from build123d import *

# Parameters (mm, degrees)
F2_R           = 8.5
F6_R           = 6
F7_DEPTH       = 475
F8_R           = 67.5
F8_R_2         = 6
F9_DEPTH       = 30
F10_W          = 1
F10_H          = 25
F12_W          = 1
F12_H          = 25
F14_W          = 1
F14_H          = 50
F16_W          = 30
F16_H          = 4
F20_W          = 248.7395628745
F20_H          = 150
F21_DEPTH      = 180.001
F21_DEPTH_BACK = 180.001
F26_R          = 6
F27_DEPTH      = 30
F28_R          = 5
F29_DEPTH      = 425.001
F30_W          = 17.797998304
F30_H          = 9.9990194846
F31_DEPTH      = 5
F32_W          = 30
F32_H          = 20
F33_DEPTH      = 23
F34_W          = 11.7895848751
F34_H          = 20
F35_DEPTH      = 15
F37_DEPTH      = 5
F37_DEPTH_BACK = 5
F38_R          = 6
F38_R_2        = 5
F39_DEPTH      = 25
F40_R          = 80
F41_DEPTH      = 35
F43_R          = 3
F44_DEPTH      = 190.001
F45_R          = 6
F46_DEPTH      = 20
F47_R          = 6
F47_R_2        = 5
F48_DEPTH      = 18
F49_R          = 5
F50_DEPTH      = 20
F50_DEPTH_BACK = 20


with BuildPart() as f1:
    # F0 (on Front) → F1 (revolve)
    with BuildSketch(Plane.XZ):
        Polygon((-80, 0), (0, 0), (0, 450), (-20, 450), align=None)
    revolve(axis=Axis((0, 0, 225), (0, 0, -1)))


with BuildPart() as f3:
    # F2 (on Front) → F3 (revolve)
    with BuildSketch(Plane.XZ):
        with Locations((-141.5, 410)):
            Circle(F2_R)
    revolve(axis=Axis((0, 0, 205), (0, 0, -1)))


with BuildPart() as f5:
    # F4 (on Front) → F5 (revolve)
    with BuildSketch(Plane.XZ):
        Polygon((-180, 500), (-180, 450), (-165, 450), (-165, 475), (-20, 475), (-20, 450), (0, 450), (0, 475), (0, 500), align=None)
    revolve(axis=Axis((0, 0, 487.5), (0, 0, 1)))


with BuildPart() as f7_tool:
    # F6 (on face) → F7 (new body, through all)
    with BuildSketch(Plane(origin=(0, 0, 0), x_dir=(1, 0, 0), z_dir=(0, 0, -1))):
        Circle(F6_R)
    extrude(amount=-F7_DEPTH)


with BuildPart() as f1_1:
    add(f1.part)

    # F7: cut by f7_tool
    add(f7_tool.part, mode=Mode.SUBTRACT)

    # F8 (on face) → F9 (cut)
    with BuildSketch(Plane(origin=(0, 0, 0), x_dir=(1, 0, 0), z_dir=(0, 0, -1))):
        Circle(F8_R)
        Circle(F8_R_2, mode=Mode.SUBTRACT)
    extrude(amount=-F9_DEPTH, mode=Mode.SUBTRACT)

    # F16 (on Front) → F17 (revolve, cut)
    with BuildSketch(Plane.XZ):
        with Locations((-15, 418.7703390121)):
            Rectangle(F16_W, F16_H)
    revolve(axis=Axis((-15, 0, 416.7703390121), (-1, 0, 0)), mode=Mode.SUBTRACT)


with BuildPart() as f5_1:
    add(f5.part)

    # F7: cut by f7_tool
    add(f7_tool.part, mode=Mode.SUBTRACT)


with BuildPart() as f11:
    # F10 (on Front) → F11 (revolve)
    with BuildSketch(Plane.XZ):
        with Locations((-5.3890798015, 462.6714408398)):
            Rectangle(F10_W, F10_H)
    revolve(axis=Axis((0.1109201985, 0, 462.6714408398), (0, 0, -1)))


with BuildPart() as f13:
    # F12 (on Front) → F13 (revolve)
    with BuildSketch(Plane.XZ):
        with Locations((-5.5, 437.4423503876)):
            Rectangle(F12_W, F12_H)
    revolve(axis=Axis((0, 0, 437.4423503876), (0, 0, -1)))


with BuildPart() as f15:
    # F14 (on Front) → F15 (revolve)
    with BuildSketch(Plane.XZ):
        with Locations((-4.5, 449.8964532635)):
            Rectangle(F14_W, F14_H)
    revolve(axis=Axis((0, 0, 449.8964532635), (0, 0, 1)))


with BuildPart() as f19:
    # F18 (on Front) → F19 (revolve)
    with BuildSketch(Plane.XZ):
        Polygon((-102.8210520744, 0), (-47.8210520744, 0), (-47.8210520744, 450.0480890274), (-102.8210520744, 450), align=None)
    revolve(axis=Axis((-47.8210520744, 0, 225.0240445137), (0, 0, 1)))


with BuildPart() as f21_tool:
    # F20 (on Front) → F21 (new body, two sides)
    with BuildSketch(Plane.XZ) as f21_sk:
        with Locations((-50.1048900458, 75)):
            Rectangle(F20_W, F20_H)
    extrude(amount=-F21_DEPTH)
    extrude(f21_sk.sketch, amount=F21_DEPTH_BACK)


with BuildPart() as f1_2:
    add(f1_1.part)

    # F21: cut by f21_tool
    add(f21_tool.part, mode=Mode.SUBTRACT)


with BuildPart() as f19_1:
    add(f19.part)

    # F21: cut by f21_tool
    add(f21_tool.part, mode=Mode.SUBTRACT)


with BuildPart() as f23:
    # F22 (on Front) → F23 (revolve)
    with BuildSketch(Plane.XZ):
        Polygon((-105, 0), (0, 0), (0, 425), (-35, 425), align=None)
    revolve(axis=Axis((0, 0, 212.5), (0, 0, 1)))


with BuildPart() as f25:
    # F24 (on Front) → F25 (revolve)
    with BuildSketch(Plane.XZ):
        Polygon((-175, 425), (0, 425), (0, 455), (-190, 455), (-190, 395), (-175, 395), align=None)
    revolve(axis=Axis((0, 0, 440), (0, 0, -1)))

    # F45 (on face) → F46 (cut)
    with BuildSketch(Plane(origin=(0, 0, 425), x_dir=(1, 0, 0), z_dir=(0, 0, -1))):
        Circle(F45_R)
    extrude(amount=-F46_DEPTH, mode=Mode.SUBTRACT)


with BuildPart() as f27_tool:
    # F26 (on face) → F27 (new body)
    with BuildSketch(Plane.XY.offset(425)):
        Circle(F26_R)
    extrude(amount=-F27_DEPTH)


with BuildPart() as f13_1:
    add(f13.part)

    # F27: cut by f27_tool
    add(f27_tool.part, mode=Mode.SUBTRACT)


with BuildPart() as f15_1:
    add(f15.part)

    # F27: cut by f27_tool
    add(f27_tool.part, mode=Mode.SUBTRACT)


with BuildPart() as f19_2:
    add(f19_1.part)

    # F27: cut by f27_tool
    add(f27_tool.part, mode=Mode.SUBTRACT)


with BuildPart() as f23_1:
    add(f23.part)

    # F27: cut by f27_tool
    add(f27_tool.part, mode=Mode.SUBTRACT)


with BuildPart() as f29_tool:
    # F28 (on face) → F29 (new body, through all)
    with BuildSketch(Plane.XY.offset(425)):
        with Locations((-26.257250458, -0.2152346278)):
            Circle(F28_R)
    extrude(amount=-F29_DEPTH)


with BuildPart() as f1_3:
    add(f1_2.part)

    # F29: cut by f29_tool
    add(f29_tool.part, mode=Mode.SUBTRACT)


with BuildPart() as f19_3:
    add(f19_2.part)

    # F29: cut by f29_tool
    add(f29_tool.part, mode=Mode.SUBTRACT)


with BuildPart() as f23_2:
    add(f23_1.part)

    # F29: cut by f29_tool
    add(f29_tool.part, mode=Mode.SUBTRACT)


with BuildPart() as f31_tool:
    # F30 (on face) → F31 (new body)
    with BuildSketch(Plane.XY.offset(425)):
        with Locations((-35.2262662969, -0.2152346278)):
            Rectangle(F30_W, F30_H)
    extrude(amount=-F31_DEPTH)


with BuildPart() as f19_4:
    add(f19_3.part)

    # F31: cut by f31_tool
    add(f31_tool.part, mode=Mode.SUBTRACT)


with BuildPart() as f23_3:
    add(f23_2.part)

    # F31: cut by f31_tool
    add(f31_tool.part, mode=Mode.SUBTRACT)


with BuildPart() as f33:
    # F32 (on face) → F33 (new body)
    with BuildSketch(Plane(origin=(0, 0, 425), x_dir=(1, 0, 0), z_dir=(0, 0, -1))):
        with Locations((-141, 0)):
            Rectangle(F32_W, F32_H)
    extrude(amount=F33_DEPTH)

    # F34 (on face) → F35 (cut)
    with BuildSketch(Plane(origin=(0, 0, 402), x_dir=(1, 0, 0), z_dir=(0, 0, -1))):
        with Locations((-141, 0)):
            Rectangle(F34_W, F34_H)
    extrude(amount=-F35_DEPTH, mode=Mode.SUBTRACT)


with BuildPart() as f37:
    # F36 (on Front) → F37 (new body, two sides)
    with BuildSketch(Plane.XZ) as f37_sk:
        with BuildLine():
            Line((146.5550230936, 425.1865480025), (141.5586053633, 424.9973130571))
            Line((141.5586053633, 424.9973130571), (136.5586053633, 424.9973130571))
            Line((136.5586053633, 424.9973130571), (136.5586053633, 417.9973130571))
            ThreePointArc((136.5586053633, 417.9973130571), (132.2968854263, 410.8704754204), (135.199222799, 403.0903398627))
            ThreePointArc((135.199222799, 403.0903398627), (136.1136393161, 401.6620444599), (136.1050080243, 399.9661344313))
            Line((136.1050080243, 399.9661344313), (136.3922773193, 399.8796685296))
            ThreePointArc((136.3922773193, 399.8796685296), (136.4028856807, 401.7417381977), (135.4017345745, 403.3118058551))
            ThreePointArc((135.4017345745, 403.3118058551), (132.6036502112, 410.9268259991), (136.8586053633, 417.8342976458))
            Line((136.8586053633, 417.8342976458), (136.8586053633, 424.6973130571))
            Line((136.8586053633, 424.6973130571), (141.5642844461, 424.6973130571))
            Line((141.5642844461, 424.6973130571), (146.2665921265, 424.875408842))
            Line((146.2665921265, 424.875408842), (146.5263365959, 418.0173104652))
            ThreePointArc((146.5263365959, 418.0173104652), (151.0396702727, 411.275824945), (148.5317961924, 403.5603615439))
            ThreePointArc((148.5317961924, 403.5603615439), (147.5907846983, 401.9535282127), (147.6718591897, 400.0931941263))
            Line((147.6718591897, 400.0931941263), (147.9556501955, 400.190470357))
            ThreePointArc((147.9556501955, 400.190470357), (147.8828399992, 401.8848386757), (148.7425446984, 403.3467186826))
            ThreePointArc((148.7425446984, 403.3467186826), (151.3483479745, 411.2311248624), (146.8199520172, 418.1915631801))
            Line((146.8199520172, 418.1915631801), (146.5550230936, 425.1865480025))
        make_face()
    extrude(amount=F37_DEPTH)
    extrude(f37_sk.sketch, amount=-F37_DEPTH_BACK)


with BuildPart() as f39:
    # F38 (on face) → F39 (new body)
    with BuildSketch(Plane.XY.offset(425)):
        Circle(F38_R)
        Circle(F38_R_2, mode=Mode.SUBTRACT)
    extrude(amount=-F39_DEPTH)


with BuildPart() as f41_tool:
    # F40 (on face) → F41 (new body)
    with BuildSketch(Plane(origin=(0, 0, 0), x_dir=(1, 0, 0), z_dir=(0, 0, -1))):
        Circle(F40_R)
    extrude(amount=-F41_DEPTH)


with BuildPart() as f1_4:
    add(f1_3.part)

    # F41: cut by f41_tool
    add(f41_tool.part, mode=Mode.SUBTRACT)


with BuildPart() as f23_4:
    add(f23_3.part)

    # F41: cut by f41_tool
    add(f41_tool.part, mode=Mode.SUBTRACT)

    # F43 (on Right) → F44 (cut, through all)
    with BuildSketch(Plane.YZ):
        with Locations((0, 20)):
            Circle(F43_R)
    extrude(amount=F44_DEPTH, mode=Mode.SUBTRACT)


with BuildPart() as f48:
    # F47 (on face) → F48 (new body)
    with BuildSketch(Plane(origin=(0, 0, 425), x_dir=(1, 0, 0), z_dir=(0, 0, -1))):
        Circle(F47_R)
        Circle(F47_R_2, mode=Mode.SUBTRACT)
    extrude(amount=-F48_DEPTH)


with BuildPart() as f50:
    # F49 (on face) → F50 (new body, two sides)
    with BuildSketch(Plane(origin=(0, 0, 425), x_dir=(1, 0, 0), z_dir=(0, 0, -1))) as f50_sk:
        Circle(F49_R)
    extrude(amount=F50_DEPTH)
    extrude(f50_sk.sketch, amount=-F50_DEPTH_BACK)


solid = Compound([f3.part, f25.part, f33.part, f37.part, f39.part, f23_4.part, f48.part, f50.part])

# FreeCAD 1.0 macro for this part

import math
import FreeCAD as App
import Part
import Sketcher

doc = App.newDocument("Part")
params = doc.addObject("Spreadsheet::Sheet", "Params")
for row, (alias, value) in enumerate([
    ("sketch1_width", "80 mm"),
    ("sketch1_width2", "20 mm"),
    ("sketch1_height", "450 mm"),
    ("revolution_angle", "360 deg"),
    ("sketch2_diameter", "17 mm"),
    ("revolution2_angle", "360 deg"),
    ("sketch3_width", "15 mm"),
    ("sketch3_width2", "145 mm"),
    ("sketch3_width3", "20 mm"),
    ("sketch3_height", "50 mm"),
    ("sketch3_height2", "25 mm"),
    ("revolution3_angle", "360 deg"),
    ("sketch4_diameter", "12 mm"),
    ("pad1_length", "475 mm"),
    ("sketch5_diameter", "135 mm"),
    ("sketch5_diameter2", "12 mm"),
    ("pocket1_length", "30 mm"),
    ("sketch6_width", "30 mm"),
    ("sketch6_height", "4 mm"),
    ("groove_angle", "360 deg"),
    ("sketch7_width", "1 mm"),
    ("sketch7_height", "25 mm"),
    ("revolution4_angle", "360 deg"),
    ("sketch8_width", "1 mm"),
    ("sketch8_height", "25 mm"),
    ("revolution5_angle", "360 deg"),
    ("sketch9_width", "1 mm"),
    ("sketch9_height", "50 mm"),
    ("revolution6_angle", "360 deg"),
    ("sketch10_width", "55 mm"),
    ("sketch10_height", "450 mm"),
    ("revolution7_angle", "360 deg"),
    ("sketch11_height", "150 mm"),
    ("pad2_length", "180.001 mm"),
    ("pad2_length2", "180.001 mm"),
    ("sketch12_width", "105 mm"),
    ("sketch12_width2", "35 mm"),
    ("sketch12_height", "425 mm"),
    ("revolution8_angle", "360 deg"),
    ("sketch13_width", "175 mm"),
    ("sketch13_width2", "190 mm"),
    ("sketch13_height", "30 mm"),
    ("revolution9_angle", "360 deg"),
    ("sketch14_diameter", "12 mm"),
    ("pocket2_length", "20 mm"),
    ("sketch15_diameter", "12 mm"),
    ("pad3_length", "30 mm"),
    ("sketch16_diameter", "10 mm"),
    ("pad4_length", "425.001 mm"),
    ("pad5_length", "5 mm"),
    ("sketch18_width", "30 mm"),
    ("sketch18_height", "20 mm"),
    ("pad6_length", "23 mm"),
    ("sketch19_height", "20 mm"),
    ("pocket3_length", "15 mm"),
    ("sketch20_width", "5 mm"),
    ("sketch20_height", "7 mm"),
    ("sketch20_length", "5 mm"),
    ("sketch20_length2", "7 mm"),
    ("sketch20_length3", "0.3 mm"),
    ("pad7_length", "5 mm"),
    ("pad7_length2", "5 mm"),
    ("sketch21_diameter", "12 mm"),
    ("sketch21_diameter2", "10 mm"),
    ("pad8_length", "25 mm"),
    ("sketch22_diameter", "160 mm"),
    ("pad9_length", "35 mm"),
    ("sketch23_diameter", "6 mm"),
    ("sketch24_diameter", "12 mm"),
    ("sketch24_diameter2", "10 mm"),
    ("pad10_length", "18 mm"),
    ("sketch25_diameter", "10 mm"),
    ("pad11_length", "20 mm"),
    ("pad11_length2", "20 mm"),
], start=1):
    params.set(f"A{row}", alias)
    params.set(f"B{row}", "=" + value)
    params.setAlias(f"B{row}", alias)

body = doc.addObject("PartDesign::Body", "Body")

sketch1 = body.newObject("Sketcher::SketchObject", "Sketch")
sketch1.AttachmentSupport = (doc.getObject("XZ_Plane"), [""])
sketch1.MapMode = "FlatFace"
sketch1.addGeometry([
    Part.LineSegment(App.Vector(-80, 0, 0), App.Vector(0, 0, 0)),
    Part.LineSegment(App.Vector(0, 0, 0), App.Vector(0, 450, 0)),
    Part.LineSegment(App.Vector(0, 450, 0), App.Vector(-20, 450, 0)),
    Part.LineSegment(App.Vector(-20, 450, 0), App.Vector(-80, 0, 0)),
], False)
sketch1.addConstraint([
    Sketcher.Constraint("Coincident", 0, 2, 1, 1),
    Sketcher.Constraint("Coincident", 1, 2, 2, 1),
    Sketcher.Constraint("Coincident", 2, 2, 3, 1),
    Sketcher.Constraint("Coincident", 3, 2, 0, 1),
    Sketcher.Constraint("Horizontal", 0),
    Sketcher.Constraint("Vertical", 1),
    Sketcher.Constraint("Horizontal", 2),
    Sketcher.Constraint("Coincident", 0, 2, -1, 1),
    Sketcher.Constraint("DistanceX", 0, 1, 0, 2, 80.0),
    Sketcher.Constraint("DistanceX", 2, 2, 2, 1, 20.0),
    Sketcher.Constraint("DistanceY", 1, 1, 1, 2, 450.0),
])
sketch1.setExpression("Constraints[8]", "Params.sketch1_width")
sketch1.setExpression("Constraints[9]", "Params.sketch1_width2")
sketch1.setExpression("Constraints[10]", "Params.sketch1_height")
revolution = body.newObject("PartDesign::Revolution", "Revolution")
revolution.Profile = sketch1
revolution.ReferenceAxis = (sketch1, ["V_Axis"])
revolution.setExpression("Angle", "Params.revolution_angle")
body2 = doc.addObject("PartDesign::Body", "Body001")

sketch2 = body2.newObject("Sketcher::SketchObject", "Sketch001")
sketch2.AttachmentSupport = (doc.getObject("XZ_Plane001"), [""])
sketch2.MapMode = "FlatFace"
sketch2.addGeometry(Part.Circle(App.Vector(-142, 410, 0), App.Vector(0, 0, 1), 8), False)
sketch2.addConstraint([
    Sketcher.Constraint("Diameter", 0, 17.0),
    Sketcher.Constraint("DistanceY", -1, 1, 0, 3, 410.0),
    Sketcher.Constraint("DistanceX", 0, 3, -1, 1, 141.5),
])
sketch2.setExpression("Constraints[0]", "Params.sketch2_diameter")
revolution2 = body2.newObject("PartDesign::Revolution", "Revolution001")
revolution2.Profile = sketch2
revolution2.ReferenceAxis = (sketch2, ["V_Axis"])
revolution2.setExpression("Angle", "Params.revolution2_angle")
body3 = doc.addObject("PartDesign::Body", "Body002")

sketch3 = body3.newObject("Sketcher::SketchObject", "Sketch002")
sketch3.AttachmentSupport = (doc.getObject("XZ_Plane002"), [""])
sketch3.MapMode = "FlatFace"
sketch3.addGeometry([
    Part.LineSegment(App.Vector(-180, 500, 0), App.Vector(-180, 450, 0)),
    Part.LineSegment(App.Vector(-180, 450, 0), App.Vector(-165, 450, 0)),
    Part.LineSegment(App.Vector(-165, 450, 0), App.Vector(-165, 475, 0)),
    Part.LineSegment(App.Vector(-165, 475, 0), App.Vector(-20, 475, 0)),
    Part.LineSegment(App.Vector(-20, 475, 0), App.Vector(-20, 450, 0)),
    Part.LineSegment(App.Vector(-20, 450, 0), App.Vector(0, 450, 0)),
    Part.LineSegment(App.Vector(0, 450, 0), App.Vector(0, 500, 0)),
    Part.LineSegment(App.Vector(0, 500, 0), App.Vector(-180, 500, 0)),
], False)
sketch3.addConstraint([
    Sketcher.Constraint("Coincident", 0, 2, 1, 1),
    Sketcher.Constraint("Coincident", 1, 2, 2, 1),
    Sketcher.Constraint("Coincident", 2, 2, 3, 1),
    Sketcher.Constraint("Coincident", 3, 2, 4, 1),
    Sketcher.Constraint("Coincident", 4, 2, 5, 1),
    Sketcher.Constraint("Coincident", 5, 2, 6, 1),
    Sketcher.Constraint("Coincident", 6, 2, 7, 1),
    Sketcher.Constraint("Coincident", 7, 2, 0, 1),
    Sketcher.Constraint("Vertical", 0),
    Sketcher.Constraint("Horizontal", 1),
    Sketcher.Constraint("Vertical", 2),
    Sketcher.Constraint("Horizontal", 3),
    Sketcher.Constraint("Vertical", 4),
    Sketcher.Constraint("Horizontal", 5),
    Sketcher.Constraint("Vertical", 6),
    Sketcher.Constraint("Horizontal", 7),
    Sketcher.Constraint("PointOnObject", 5, 2, -2),
    Sketcher.Constraint("Horizontal", 1, 2, 4, 2),
    Sketcher.Constraint("DistanceX", 1, 1, 1, 2, 15.0),
    Sketcher.Constraint("DistanceX", 3, 1, 3, 2, 145.0),
    Sketcher.Constraint("DistanceX", 5, 1, 5, 2, 20.0),
    Sketcher.Constraint("DistanceY", 0, 2, 0, 1, 50.0),
    Sketcher.Constraint("DistanceY", 2, 1, 2, 2, 25.0),
    Sketcher.Constraint("DistanceY", -1, 1, 0, 2, 450.0),
])
sketch3.setExpression("Constraints[18]", "Params.sketch3_width")
sketch3.setExpression("Constraints[19]", "Params.sketch3_width2")
sketch3.setExpression("Constraints[20]", "Params.sketch3_width3")
sketch3.setExpression("Constraints[21]", "Params.sketch3_height")
sketch3.setExpression("Constraints[22]", "Params.sketch3_height2")
revolution3 = body3.newObject("PartDesign::Revolution", "Revolution002")
revolution3.Profile = sketch3
revolution3.ReferenceAxis = (sketch3, ["V_Axis"])
revolution3.setExpression("Angle", "Params.revolution3_angle")
body4 = doc.addObject("PartDesign::Body", "Body003")

sketch4 = body4.newObject("Sketcher::SketchObject", "Sketch003")
sketch4.AttachmentSupport = (doc.getObject("XY_Plane003"), [""])
sketch4.MapMode = "FlatFace"
sketch4.addGeometry(Part.Circle(App.Vector(0, 0, 0), App.Vector(0, 0, 1), 6), False)
sketch4.addConstraint([
    Sketcher.Constraint("Coincident", 0, 3, -1, 1),
    Sketcher.Constraint("Diameter", 0, 12.0),
])
sketch4.setExpression("Constraints[1]", "Params.sketch4_diameter")
pad1 = body4.newObject("PartDesign::Pad", "Pad")
pad1.Profile = sketch4
pad1.setExpression("Length", "Params.pad1_length")
doc.recompute()

body5 = doc.addObject("PartDesign::Body", "Body004")
body5.BaseFeature = body4
boolean = body.newObject("PartDesign::Boolean", "Boolean")
boolean.Type = "Cut"
boolean.addObjects([body5])
doc.recompute()

sketch5 = body.newObject("Sketcher::SketchObject", "Sketch004")
sketch5.AttachmentSupport = (doc.getObject("XY_Plane"), [""])
sketch5.MapMode = "FlatFace"
sketch5.addGeometry([
    Part.Circle(App.Vector(0, 0, 0), App.Vector(0, 0, 1), 68),
    Part.Circle(App.Vector(0, 0, 0), App.Vector(0, 0, 1), 6),
], False)
sketch5.addConstraint([
    Sketcher.Constraint("Coincident", 0, 3, -1, 1),
    Sketcher.Constraint("Coincident", 1, 3, -1, 1),
    Sketcher.Constraint("Diameter", 0, 135.0),
    Sketcher.Constraint("Diameter", 1, 12.0),
])
sketch5.setExpression("Constraints[2]", "Params.sketch5_diameter")
sketch5.setExpression("Constraints[3]", "Params.sketch5_diameter2")
pocket1 = body.newObject("PartDesign::Pocket", "Pocket")
pocket1.Profile = sketch5
pocket1.setExpression("Length", "Params.pocket1_length")
pocket1.Reversed = True

sketch6 = body.newObject("Sketcher::SketchObject", "Sketch005")
sketch6.AttachmentSupport = (doc.getObject("XZ_Plane"), [""])
sketch6.MapMode = "FlatFace"
sketch6.addGeometry([
    Part.LineSegment(App.Vector(-30, 420.8, 0), App.Vector(-30, 416.8, 0)),
    Part.LineSegment(App.Vector(-30, 416.8, 0), App.Vector(0, 416.8, 0)),
    Part.LineSegment(App.Vector(0, 416.8, 0), App.Vector(0, 420.8, 0)),
    Part.LineSegment(App.Vector(0, 420.8, 0), App.Vector(-30, 420.8, 0)),
], False)
sketch6.addGeometry(Part.LineSegment(App.Vector(0, 416.8, 0), App.Vector(-30, 416.8, 0)), True)
sketch6.addConstraint([
    Sketcher.Constraint("Coincident", 0, 2, 1, 1),
    Sketcher.Constraint("Coincident", 1, 2, 2, 1),
    Sketcher.Constraint("Coincident", 2, 2, 3, 1),
    Sketcher.Constraint("Coincident", 3, 2, 0, 1),
    Sketcher.Constraint("Vertical", 0),
    Sketcher.Constraint("Horizontal", 1),
    Sketcher.Constraint("Vertical", 2),
    Sketcher.Constraint("Horizontal", 3),
    Sketcher.Constraint("Horizontal", 4),
    Sketcher.Constraint("Coincident", 4, 1, 1, 2),
    Sketcher.Constraint("PointOnObject", 1, 2, -2),
    Sketcher.Constraint("Vertical", 3, 2, 4, 2),
    Sketcher.Constraint("DistanceX", 1, 1, 1, 2, 30.0),
    Sketcher.Constraint("DistanceY", 0, 2, 0, 1, 4.0),
    Sketcher.Constraint("DistanceY", -1, 1, 0, 2, 416.770339),
])
sketch6.setExpression("Constraints[12]", "Params.sketch6_width")
sketch6.setExpression("Constraints[13]", "Params.sketch6_height")
groove = body.newObject("PartDesign::Groove", "Groove")
groove.Profile = sketch6
groove.ReferenceAxis = (sketch6, ["Axis0"])
groove.setExpression("Angle", "Params.groove_angle")
doc.recompute()

boolean2 = body3.newObject("PartDesign::Boolean", "Boolean001")
boolean2.Type = "Cut"
boolean2.addObjects([body4])
body6 = doc.addObject("PartDesign::Body", "Body005")

sketch7 = body6.newObject("Sketcher::SketchObject", "Sketch006")
sketch7.AttachmentSupport = (doc.getObject("XZ_Plane005"), [""])
sketch7.MapMode = "FlatFace"
sketch7.addGeometry([
    Part.LineSegment(App.Vector(-5.9, 475.2, 0), App.Vector(-5.9, 450.2, 0)),
    Part.LineSegment(App.Vector(-5.9, 450.2, 0), App.Vector(-4.9, 450.2, 0)),
    Part.LineSegment(App.Vector(-4.9, 450.2, 0), App.Vector(-4.9, 475.2, 0)),
    Part.LineSegment(App.Vector(-4.9, 475.2, 0), App.Vector(-5.9, 475.2, 0)),
], False)
sketch7.addGeometry(Part.LineSegment(App.Vector(0.1, 475.2, 0), App.Vector(0.1, 450.2, 0)), True)
sketch7.addConstraint([
    Sketcher.Constraint("Coincident", 0, 2, 1, 1),
    Sketcher.Constraint("Coincident", 1, 2, 2, 1),
    Sketcher.Constraint("Coincident", 2, 2, 3, 1),
    Sketcher.Constraint("Coincident", 3, 2, 0, 1),
    Sketcher.Constraint("Vertical", 0),
    Sketcher.Constraint("Horizontal", 1),
    Sketcher.Constraint("Vertical", 2),
    Sketcher.Constraint("Horizontal", 3),
    Sketcher.Constraint("Vertical", 4),
    Sketcher.Constraint("Horizontal", 3, 2, 4, 1),
    Sketcher.Constraint("Horizontal", 1, 2, 4, 2),
    Sketcher.Constraint("DistanceX", 1, 1, 1, 2, 1.0),
    Sketcher.Constraint("DistanceY", 0, 2, 0, 1, 25.0),
    Sketcher.Constraint("DistanceX", 2, 2, 4, 1, 5.0),
    Sketcher.Constraint("DistanceX", 0, 2, -1, 1, 5.88908),
    Sketcher.Constraint("DistanceY", -1, 1, 0, 2, 450.171441),
])
sketch7.setExpression("Constraints[11]", "Params.sketch7_width")
sketch7.setExpression("Constraints[12]", "Params.sketch7_height")
revolution4 = body6.newObject("PartDesign::Revolution", "Revolution003")
revolution4.Profile = sketch7
revolution4.ReferenceAxis = (sketch7, ["Axis0"])
revolution4.setExpression("Angle", "Params.revolution4_angle")
body7 = doc.addObject("PartDesign::Body", "Body006")

sketch8 = body7.newObject("Sketcher::SketchObject", "Sketch007")
sketch8.AttachmentSupport = (doc.getObject("XZ_Plane006"), [""])
sketch8.MapMode = "FlatFace"
sketch8.addGeometry([
    Part.LineSegment(App.Vector(-6, 449.9, 0), App.Vector(-6, 424.9, 0)),
    Part.LineSegment(App.Vector(-6, 424.9, 0), App.Vector(-5, 424.9, 0)),
    Part.LineSegment(App.Vector(-5, 424.9, 0), App.Vector(-5, 449.9, 0)),
    Part.LineSegment(App.Vector(-5, 449.9, 0), App.Vector(-6, 449.9, 0)),
], False)
sketch8.addConstraint([
    Sketcher.Constraint("Coincident", 0, 2, 1, 1),
    Sketcher.Constraint("Coincident", 1, 2, 2, 1),
    Sketcher.Constraint("Coincident", 2, 2, 3, 1),
    Sketcher.Constraint("Coincident", 3, 2, 0, 1),
    Sketcher.Constraint("Vertical", 0),
    Sketcher.Constraint("Horizontal", 1),
    Sketcher.Constraint("Vertical", 2),
    Sketcher.Constraint("Horizontal", 3),
    Sketcher.Constraint("DistanceX", 1, 1, 1, 2, 1.0),
    Sketcher.Constraint("DistanceY", 0, 2, 0, 1, 25.0),
    Sketcher.Constraint("DistanceX", 0, 2, -1, 1, 6.0),
    Sketcher.Constraint("DistanceY", -1, 1, 0, 2, 424.94235),
])
sketch8.setExpression("Constraints[8]", "Params.sketch8_width")
sketch8.setExpression("Constraints[9]", "Params.sketch8_height")
revolution5 = body7.newObject("PartDesign::Revolution", "Revolution004")
revolution5.Profile = sketch8
revolution5.ReferenceAxis = (sketch8, ["V_Axis"])
revolution5.setExpression("Angle", "Params.revolution5_angle")
body8 = doc.addObject("PartDesign::Body", "Body007")

sketch9 = body8.newObject("Sketcher::SketchObject", "Sketch008")
sketch9.AttachmentSupport = (doc.getObject("XZ_Plane007"), [""])
sketch9.MapMode = "FlatFace"
sketch9.addGeometry([
    Part.LineSegment(App.Vector(-5, 474.9, 0), App.Vector(-5, 424.9, 0)),
    Part.LineSegment(App.Vector(-5, 424.9, 0), App.Vector(-4, 424.9, 0)),
    Part.LineSegment(App.Vector(-4, 424.9, 0), App.Vector(-4, 474.9, 0)),
    Part.LineSegment(App.Vector(-4, 474.9, 0), App.Vector(-5, 474.9, 0)),
], False)
sketch9.addConstraint([
    Sketcher.Constraint("Coincident", 0, 2, 1, 1),
    Sketcher.Constraint("Coincident", 1, 2, 2, 1),
    Sketcher.Constraint("Coincident", 2, 2, 3, 1),
    Sketcher.Constraint("Coincident", 3, 2, 0, 1),
    Sketcher.Constraint("Vertical", 0),
    Sketcher.Constraint("Horizontal", 1),
    Sketcher.Constraint("Vertical", 2),
    Sketcher.Constraint("Horizontal", 3),
    Sketcher.Constraint("DistanceX", 1, 1, 1, 2, 1.0),
    Sketcher.Constraint("DistanceY", 0, 2, 0, 1, 50.0),
    Sketcher.Constraint("DistanceX", 0, 2, -1, 1, 5.0),
    Sketcher.Constraint("DistanceY", -1, 1, 0, 2, 424.896453),
])
sketch9.setExpression("Constraints[8]", "Params.sketch9_width")
sketch9.setExpression("Constraints[9]", "Params.sketch9_height")
revolution6 = body8.newObject("PartDesign::Revolution", "Revolution005")
revolution6.Profile = sketch9
revolution6.ReferenceAxis = (sketch9, ["V_Axis"])
revolution6.setExpression("Angle", "Params.revolution6_angle")
body9 = doc.addObject("PartDesign::Body", "Body008")

sketch10 = body9.newObject("Sketcher::SketchObject", "Sketch009")
sketch10.AttachmentSupport = (doc.getObject("XZ_Plane008"), [""])
sketch10.MapMode = "FlatFace"
sketch10.addGeometry([
    Part.LineSegment(App.Vector(-103, 0, 0), App.Vector(-48, 0, 0)),
    Part.LineSegment(App.Vector(-48, 0, 0), App.Vector(-48, 450, 0)),
    Part.LineSegment(App.Vector(-48, 450, 0), App.Vector(-103, 450, 0)),
    Part.LineSegment(App.Vector(-103, 450, 0), App.Vector(-103, 0, 0)),
], False)
sketch10.addGeometry(Part.LineSegment(App.Vector(-48, 0, 0), App.Vector(-48, 450, 0)), True)
sketch10.addConstraint([
    Sketcher.Constraint("Coincident", 0, 2, 1, 1),
    Sketcher.Constraint("Coincident", 1, 2, 2, 1),
    Sketcher.Constraint("Coincident", 2, 2, 3, 1),
    Sketcher.Constraint("Coincident", 3, 2, 0, 1),
    Sketcher.Constraint("Horizontal", 0),
    Sketcher.Constraint("Vertical", 1),
    Sketcher.Constraint("Vertical", 3),
    Sketcher.Constraint("Vertical", 4),
    Sketcher.Constraint("Coincident", 4, 1, 0, 2),
    Sketcher.Constraint("PointOnObject", 0, 2, -1),
    Sketcher.Constraint("Equal", 1, 4),
    Sketcher.Constraint("DistanceX", 0, 1, 0, 2, 55.0),
    Sketcher.Constraint("DistanceY", 3, 2, 3, 1, 450.0),
    Sketcher.Constraint("DistanceY", 1, 1, 1, 2, 450.048089),
    Sketcher.Constraint("DistanceX", 0, 2, -1, 1, 47.821052),
])
sketch10.setExpression("Constraints[11]", "Params.sketch10_width")
sketch10.setExpression("Constraints[12]", "Params.sketch10_height")
revolution7 = body9.newObject("PartDesign::Revolution", "Revolution006")
revolution7.Profile = sketch10
revolution7.ReferenceAxis = (sketch10, ["Axis0"])
revolution7.setExpression("Angle", "Params.revolution7_angle")
body10 = doc.addObject("PartDesign::Body", "Body009")

sketch11 = body10.newObject("Sketcher::SketchObject", "Sketch010")
sketch11.AttachmentSupport = (doc.getObject("XZ_Plane009"), [""])
sketch11.MapMode = "FlatFace"
sketch11.addGeometry([
    Part.LineSegment(App.Vector(-174, 150, 0), App.Vector(-174, 0, 0)),
    Part.LineSegment(App.Vector(-174, 0, 0), App.Vector(74, 0, 0)),
    Part.LineSegment(App.Vector(74, 0, 0), App.Vector(74, 150, 0)),
    Part.LineSegment(App.Vector(74, 150, 0), App.Vector(-174, 150, 0)),
], False)
sketch11.addConstraint([
    Sketcher.Constraint("Coincident", 0, 2, 1, 1),
    Sketcher.Constraint("Coincident", 1, 2, 2, 1),
    Sketcher.Constraint("Coincident", 2, 2, 3, 1),
    Sketcher.Constraint("Coincident", 3, 2, 0, 1),
    Sketcher.Constraint("Vertical", 0),
    Sketcher.Constraint("Horizontal", 1),
    Sketcher.Constraint("Vertical", 2),
    Sketcher.Constraint("Horizontal", 3),
    Sketcher.Constraint("PointOnObject", 0, 2, -1),
    Sketcher.Constraint("DistanceY", 0, 2, 0, 1, 150.0),
    Sketcher.Constraint("DistanceX", 1, 1, 1, 2, 248.739563),
    Sketcher.Constraint("DistanceX", 0, 2, -1, 1, 174.474671),
])
sketch11.setExpression("Constraints[9]", "Params.sketch11_height")
pad2 = body10.newObject("PartDesign::Pad", "Pad001")
pad2.Profile = sketch11
pad2.Type = "TwoLengths"
pad2.setExpression("Length", "Params.pad2_length")
pad2.setExpression("Length2", "Params.pad2_length2")
pad2.Reversed = True
body.AllowCompound = True
doc.recompute()

body11 = doc.addObject("PartDesign::Body", "Body010")
body11.BaseFeature = body10
boolean3 = body.newObject("PartDesign::Boolean", "Boolean002")
boolean3.Type = "Cut"
boolean3.addObjects([body11])
doc.recompute()

boolean4 = body9.newObject("PartDesign::Boolean", "Boolean003")
boolean4.Type = "Cut"
boolean4.addObjects([body10])
body12 = doc.addObject("PartDesign::Body", "Body011")

sketch12 = body12.newObject("Sketcher::SketchObject", "Sketch011")
sketch12.AttachmentSupport = (doc.getObject("XZ_Plane011"), [""])
sketch12.MapMode = "FlatFace"
sketch12.addGeometry([
    Part.LineSegment(App.Vector(-105, 0, 0), App.Vector(0, 0, 0)),
    Part.LineSegment(App.Vector(0, 0, 0), App.Vector(0, 425, 0)),
    Part.LineSegment(App.Vector(0, 425, 0), App.Vector(-35, 425, 0)),
    Part.LineSegment(App.Vector(-35, 425, 0), App.Vector(-105, 0, 0)),
], False)
sketch12.addConstraint([
    Sketcher.Constraint("Coincident", 0, 2, 1, 1),
    Sketcher.Constraint("Coincident", 1, 2, 2, 1),
    Sketcher.Constraint("Coincident", 2, 2, 3, 1),
    Sketcher.Constraint("Coincident", 3, 2, 0, 1),
    Sketcher.Constraint("Horizontal", 0),
    Sketcher.Constraint("Vertical", 1),
    Sketcher.Constraint("Horizontal", 2),
    Sketcher.Constraint("Coincident", 0, 2, -1, 1),
    Sketcher.Constraint("DistanceX", 0, 1, 0, 2, 105.0),
    Sketcher.Constraint("DistanceX", 2, 2, 2, 1, 35.0),
    Sketcher.Constraint("DistanceY", 1, 1, 1, 2, 425.0),
])
sketch12.setExpression("Constraints[8]", "Params.sketch12_width")
sketch12.setExpression("Constraints[9]", "Params.sketch12_width2")
sketch12.setExpression("Constraints[10]", "Params.sketch12_height")
revolution8 = body12.newObject("PartDesign::Revolution", "Revolution007")
revolution8.Profile = sketch12
revolution8.ReferenceAxis = (sketch12, ["V_Axis"])
revolution8.setExpression("Angle", "Params.revolution8_angle")
body13 = doc.addObject("PartDesign::Body", "Body012")

sketch13 = body13.newObject("Sketcher::SketchObject", "Sketch012")
sketch13.AttachmentSupport = (doc.getObject("XZ_Plane012"), [""])
sketch13.MapMode = "FlatFace"
sketch13.addGeometry([
    Part.LineSegment(App.Vector(-175, 425, 0), App.Vector(0, 425, 0)),
    Part.LineSegment(App.Vector(0, 425, 0), App.Vector(0, 455, 0)),
    Part.LineSegment(App.Vector(0, 455, 0), App.Vector(-190, 455, 0)),
    Part.LineSegment(App.Vector(-190, 455, 0), App.Vector(-190, 395, 0)),
    Part.LineSegment(App.Vector(-190, 395, 0), App.Vector(-175, 395, 0)),
    Part.LineSegment(App.Vector(-175, 395, 0), App.Vector(-175, 425, 0)),
], False)
sketch13.addConstraint([
    Sketcher.Constraint("Coincident", 0, 2, 1, 1),
    Sketcher.Constraint("Coincident", 1, 2, 2, 1),
    Sketcher.Constraint("Coincident", 2, 2, 3, 1),
    Sketcher.Constraint("Coincident", 3, 2, 4, 1),
    Sketcher.Constraint("Coincident", 4, 2, 5, 1),
    Sketcher.Constraint("Coincident", 5, 2, 0, 1),
    Sketcher.Constraint("Horizontal", 0),
    Sketcher.Constraint("Vertical", 1),
    Sketcher.Constraint("Horizontal", 2),
    Sketcher.Constraint("Vertical", 3),
    Sketcher.Constraint("Horizontal", 4),
    Sketcher.Constraint("Vertical", 5),
    Sketcher.Constraint("PointOnObject", 0, 2, -2),
    Sketcher.Constraint("Equal", 1, 5),
    Sketcher.Constraint("DistanceX", 0, 1, 0, 2, 175.0),
    Sketcher.Constraint("DistanceX", 2, 2, 2, 1, 190.0),
    Sketcher.Constraint("DistanceY", 1, 1, 1, 2, 30.0),
    Sketcher.Constraint("DistanceY", -1, 1, 0, 2, 425.0),
])
sketch13.setExpression("Constraints[14]", "Params.sketch13_width")
sketch13.setExpression("Constraints[15]", "Params.sketch13_width2")
sketch13.setExpression("Constraints[16]", "Params.sketch13_height")
revolution9 = body13.newObject("PartDesign::Revolution", "Revolution008")
revolution9.Profile = sketch13
revolution9.ReferenceAxis = (sketch13, ["V_Axis"])
revolution9.setExpression("Angle", "Params.revolution9_angle")

sketch14 = body13.newObject("Sketcher::SketchObject", "Sketch013")
sketch14.AttachmentSupport = (doc.getObject("XY_Plane012"), [""])
sketch14.MapMode = "FlatFace"
sketch14.AttachmentOffset = App.Placement(App.Vector(0, 0, 425), App.Rotation())
sketch14.addGeometry(Part.Circle(App.Vector(0, 0, 0), App.Vector(0, 0, 1), 6), False)
sketch14.addConstraint([
    Sketcher.Constraint("Coincident", 0, 3, -1, 1),
    Sketcher.Constraint("Diameter", 0, 12.0),
])
sketch14.setExpression("Constraints[1]", "Params.sketch14_diameter")
pocket2 = body13.newObject("PartDesign::Pocket", "Pocket001")
pocket2.Profile = sketch14
pocket2.setExpression("Length", "Params.pocket2_length")
pocket2.Reversed = True
body14 = doc.addObject("PartDesign::Body", "Body013")

sketch15 = body14.newObject("Sketcher::SketchObject", "Sketch014")
sketch15.AttachmentSupport = (doc.getObject("XY_Plane013"), [""])
sketch15.MapMode = "FlatFace"
sketch15.AttachmentOffset = App.Placement(App.Vector(0, 0, 425), App.Rotation())
sketch15.addGeometry(Part.Circle(App.Vector(0, 0, 0), App.Vector(0, 0, 1), 6), False)
sketch15.addConstraint([
    Sketcher.Constraint("Coincident", 0, 3, -1, 1),
    Sketcher.Constraint("Diameter", 0, 12.0),
])
sketch15.setExpression("Constraints[1]", "Params.sketch15_diameter")
pad3 = body14.newObject("PartDesign::Pad", "Pad002")
pad3.Profile = sketch15
pad3.setExpression("Length", "Params.pad3_length")
pad3.Reversed = True
doc.recompute()

body15 = doc.addObject("PartDesign::Body", "Body014")
body15.BaseFeature = body14
boolean5 = body7.newObject("PartDesign::Boolean", "Boolean004")
boolean5.Type = "Cut"
boolean5.addObjects([body15])
doc.recompute()

body16 = doc.addObject("PartDesign::Body", "Body015")
body16.BaseFeature = body14
boolean6 = body8.newObject("PartDesign::Boolean", "Boolean005")
boolean6.Type = "Cut"
boolean6.addObjects([body16])
doc.recompute()

body17 = doc.addObject("PartDesign::Body", "Body016")
body17.BaseFeature = body14
boolean7 = body9.newObject("PartDesign::Boolean", "Boolean006")
boolean7.Type = "Cut"
boolean7.addObjects([body17])
doc.recompute()

boolean8 = body12.newObject("PartDesign::Boolean", "Boolean007")
boolean8.Type = "Cut"
boolean8.addObjects([body14])
body18 = doc.addObject("PartDesign::Body", "Body017")

sketch16 = body18.newObject("Sketcher::SketchObject", "Sketch015")
sketch16.AttachmentSupport = (doc.getObject("XY_Plane017"), [""])
sketch16.MapMode = "FlatFace"
sketch16.AttachmentOffset = App.Placement(App.Vector(0, 0, 425), App.Rotation())
sketch16.addGeometry(Part.Circle(App.Vector(-26, 0, 0), App.Vector(0, 0, 1), 5), False)
sketch16.addConstraint([
    Sketcher.Constraint("Diameter", 0, 10.0),
    Sketcher.Constraint("DistanceX", 0, 3, -1, 1, 26.25725),
    Sketcher.Constraint("DistanceY", 0, 3, -1, 1, 0.215235),
])
sketch16.setExpression("Constraints[0]", "Params.sketch16_diameter")
pad4 = body18.newObject("PartDesign::Pad", "Pad003")
pad4.Profile = sketch16
pad4.setExpression("Length", "Params.pad4_length")
pad4.Reversed = True
body.AllowCompound = True
doc.recompute()

body19 = doc.addObject("PartDesign::Body", "Body018")
body19.BaseFeature = body18
boolean9 = body.newObject("PartDesign::Boolean", "Boolean008")
boolean9.Type = "Cut"
boolean9.addObjects([body19])
doc.recompute()

body20 = doc.addObject("PartDesign::Body", "Body019")
body20.BaseFeature = body18
boolean10 = body9.newObject("PartDesign::Boolean", "Boolean009")
boolean10.Type = "Cut"
boolean10.addObjects([body20])
doc.recompute()

boolean11 = body12.newObject("PartDesign::Boolean", "Boolean010")
boolean11.Type = "Cut"
boolean11.addObjects([body18])
body21 = doc.addObject("PartDesign::Body", "Body020")

sketch17 = body21.newObject("Sketcher::SketchObject", "Sketch016")
sketch17.AttachmentSupport = (doc.getObject("XY_Plane020"), [""])
sketch17.MapMode = "FlatFace"
sketch17.AttachmentOffset = App.Placement(App.Vector(0, 0, 425), App.Rotation())
sketch17.addGeometry([
    Part.LineSegment(App.Vector(-44, 5, 0), App.Vector(-44, -5, 0)),
    Part.LineSegment(App.Vector(-44, -5, 0), App.Vector(-26, -5, 0)),
    Part.LineSegment(App.Vector(-26, -5, 0), App.Vector(-26, 5, 0)),
    Part.LineSegment(App.Vector(-26, 5, 0), App.Vector(-44, 5, 0)),
], False)
sketch17.addConstraint([
    Sketcher.Constraint("Coincident", 0, 2, 1, 1),
    Sketcher.Constraint("Coincident", 1, 2, 2, 1),
    Sketcher.Constraint("Coincident", 2, 2, 3, 1),
    Sketcher.Constraint("Coincident", 3, 2, 0, 1),
    Sketcher.Constraint("Vertical", 0),
    Sketcher.Constraint("Horizontal", 1),
    Sketcher.Constraint("Vertical", 2),
    Sketcher.Constraint("Horizontal", 3),
    Sketcher.Constraint("DistanceX", 1, 1, 1, 2, 17.797998),
    Sketcher.Constraint("DistanceY", 0, 2, 0, 1, 9.999019),
    Sketcher.Constraint("DistanceX", 0, 2, -1, 1, 44.125265),
    Sketcher.Constraint("DistanceY", 0, 2, -1, 1, 5.214744),
])
pad5 = body21.newObject("PartDesign::Pad", "Pad004")
pad5.Profile = sketch17
pad5.setExpression("Length", "Params.pad5_length")
pad5.Reversed = True
doc.recompute()

body22 = doc.addObject("PartDesign::Body", "Body021")
body22.BaseFeature = body21
boolean12 = body9.newObject("PartDesign::Boolean", "Boolean011")
boolean12.Type = "Cut"
boolean12.addObjects([body22])
doc.recompute()

boolean13 = body12.newObject("PartDesign::Boolean", "Boolean012")
boolean13.Type = "Cut"
boolean13.addObjects([body21])
body23 = doc.addObject("PartDesign::Body", "Body022")

sketch18 = body23.newObject("Sketcher::SketchObject", "Sketch017")
sketch18.AttachmentSupport = (doc.getObject("XY_Plane022"), [""])
sketch18.MapMode = "FlatFace"
sketch18.AttachmentOffset = App.Placement(App.Vector(0, 0, 425), App.Rotation())
sketch18.addGeometry([
    Part.LineSegment(App.Vector(-156, -10, 0), App.Vector(-156, 10, 0)),
    Part.LineSegment(App.Vector(-156, 10, 0), App.Vector(-126, 10, 0)),
    Part.LineSegment(App.Vector(-126, 10, 0), App.Vector(-126, -10, 0)),
    Part.LineSegment(App.Vector(-126, -10, 0), App.Vector(-156, -10, 0)),
], False)
sketch18.addConstraint([
    Sketcher.Constraint("Coincident", 0, 2, 1, 1),
    Sketcher.Constraint("Coincident", 1, 2, 2, 1),
    Sketcher.Constraint("Coincident", 2, 2, 3, 1),
    Sketcher.Constraint("Coincident", 3, 2, 0, 1),
    Sketcher.Constraint("Vertical", 0),
    Sketcher.Constraint("Horizontal", 1),
    Sketcher.Constraint("Vertical", 2),
    Sketcher.Constraint("Horizontal", 3),
    Sketcher.Constraint("DistanceX", 1, 1, 1, 2, 30.0),
    Sketcher.Constraint("DistanceY", 0, 1, 0, 2, 20.0),
    Sketcher.Constraint("DistanceX", 0, 2, -1, 1, 156.0),
    Sketcher.Constraint("DistanceY", -1, 1, 0, 2, 10.0),
])
sketch18.setExpression("Constraints[8]", "Params.sketch18_width")
sketch18.setExpression("Constraints[9]", "Params.sketch18_height")
pad6 = body23.newObject("PartDesign::Pad", "Pad005")
pad6.Profile = sketch18
pad6.setExpression("Length", "Params.pad6_length")
pad6.Reversed = True

sketch19 = body23.newObject("Sketcher::SketchObject", "Sketch018")
sketch19.AttachmentSupport = (doc.getObject("XY_Plane022"), [""])
sketch19.MapMode = "FlatFace"
sketch19.AttachmentOffset = App.Placement(App.Vector(0, 0, 402), App.Rotation())
sketch19.addGeometry([
    Part.LineSegment(App.Vector(-147, -10, 0), App.Vector(-147, 10, 0)),
    Part.LineSegment(App.Vector(-147, 10, 0), App.Vector(-135, 10, 0)),
    Part.LineSegment(App.Vector(-135, 10, 0), App.Vector(-135, -10, 0)),
    Part.LineSegment(App.Vector(-135, -10, 0), App.Vector(-147, -10, 0)),
], False)
sketch19.addConstraint([
    Sketcher.Constraint("Coincident", 0, 2, 1, 1),
    Sketcher.Constraint("Coincident", 1, 2, 2, 1),
    Sketcher.Constraint("Coincident", 2, 2, 3, 1),
    Sketcher.Constraint("Coincident", 3, 2, 0, 1),
    Sketcher.Constraint("Vertical", 0),
    Sketcher.Constraint("Horizontal", 1),
    Sketcher.Constraint("Vertical", 2),
    Sketcher.Constraint("Horizontal", 3),
    Sketcher.Constraint("DistanceY", 0, 1, 0, 2, 20.0),
    Sketcher.Constraint("DistanceY", -1, 1, 0, 2, 10.0),
    Sketcher.Constraint("DistanceX", 1, 1, 1, 2, 11.789585),
    Sketcher.Constraint("DistanceX", 0, 2, -1, 1, 146.894792),
])
sketch19.setExpression("Constraints[8]", "Params.sketch19_height")
pocket3 = body23.newObject("PartDesign::Pocket", "Pocket002")
pocket3.Profile = sketch19
pocket3.setExpression("Length", "Params.pocket3_length")
pocket3.Reversed = True
body24 = doc.addObject("PartDesign::Body", "Body023")

sketch20 = body24.newObject("Sketcher::SketchObject", "Sketch019")
sketch20.AttachmentSupport = (doc.getObject("XZ_Plane023"), [""])
sketch20.MapMode = "FlatFace"
sketch20.addGeometry([
    Part.LineSegment(App.Vector(146.56, 425.19, 0), App.Vector(141.56, 425, 0)),
    Part.LineSegment(App.Vector(141.56, 425, 0), App.Vector(136.56, 425, 0)),
    Part.LineSegment(App.Vector(136.56, 425, 0), App.Vector(136.56, 418, 0)),
    Part.ArcOfCircle(Part.Circle(App.Vector(141.84, 410, 0), App.Vector(0, 0, 1), 9.59), math.radians(123), math.radians(226)),
    Part.ArcOfCircle(Part.Circle(App.Vector(133.24, 400.83, 0), App.Vector(0, 0, 1), 2.99), math.radians(-17), math.radians(49)),
    Part.LineSegment(App.Vector(136.11, 399.97, 0), App.Vector(136.39, 399.88, 0)),
    Part.ArcOfCircle(Part.Circle(App.Vector(133.24, 400.83, 0), App.Vector(0, 0, 1), 3.29), math.radians(-17), math.radians(49)),
    Part.ArcOfCircle(Part.Circle(App.Vector(141.84, 410, 0), App.Vector(0, 0, 1), 9.29), math.radians(122), math.radians(226)),
    Part.LineSegment(App.Vector(136.86, 417.83, 0), App.Vector(136.86, 424.7, 0)),
    Part.LineSegment(App.Vector(136.86, 424.7, 0), App.Vector(141.56, 424.7, 0)),
    Part.LineSegment(App.Vector(141.56, 424.7, 0), App.Vector(146.27, 424.88, 0)),
    Part.LineSegment(App.Vector(146.27, 424.88, 0), App.Vector(146.53, 418.02, 0)),
    Part.ArcOfCircle(Part.Circle(App.Vector(141.84, 410, 0), App.Vector(0, 0, 1), 9.29), math.radians(-44), math.radians(60)),
    Part.ArcOfCircle(Part.Circle(App.Vector(150.79, 401.16, 0), App.Vector(0, 0, 1), 3.29), math.radians(133), math.radians(199)),
    Part.LineSegment(App.Vector(147.67, 400.09, 0), App.Vector(147.96, 400.19, 0)),
    Part.ArcOfCircle(Part.Circle(App.Vector(150.79, 401.16, 0), App.Vector(0, 0, 1), 2.99), math.radians(133), math.radians(199)),
    Part.ArcOfCircle(Part.Circle(App.Vector(141.84, 410, 0), App.Vector(0, 0, 1), 9.59), math.radians(-44), math.radians(59)),
    Part.LineSegment(App.Vector(146.82, 418.19, 0), App.Vector(146.56, 425.19, 0)),
], False)
sketch20.addConstraint([
    Sketcher.Constraint("Coincident", 0, 2, 1, 1),
    Sketcher.Constraint("Coincident", 1, 2, 2, 1),
    Sketcher.Constraint("Coincident", 2, 2, 3, 1),
    Sketcher.Constraint("Coincident", 3, 2, 4, 2),
    Sketcher.Constraint("Coincident", 4, 1, 5, 1),
    Sketcher.Constraint("Coincident", 5, 2, 6, 1),
    Sketcher.Constraint("Coincident", 6, 2, 7, 2),
    Sketcher.Constraint("Coincident", 7, 1, 8, 1),
    Sketcher.Constraint("Coincident", 8, 2, 9, 1),
    Sketcher.Constraint("Coincident", 9, 2, 10, 1),
    Sketcher.Constraint("Coincident", 10, 2, 11, 1),
    Sketcher.Constraint("Coincident", 11, 2, 12, 2),
    Sketcher.Constraint("Coincident", 12, 1, 13, 1),
    Sketcher.Constraint("Coincident", 13, 2, 14, 1),
    Sketcher.Constraint("Coincident", 14, 2, 15, 2),
    Sketcher.Constraint("Coincident", 15, 1, 16, 1),
    Sketcher.Constraint("Coincident", 16, 2, 17, 1),
    Sketcher.Constraint("Coincident", 17, 2, 0, 1),
    Sketcher.Constraint("Horizontal", 1),
    Sketcher.Constraint("Vertical", 2),
    Sketcher.Constraint("Vertical", 8),
    Sketcher.Constraint("Horizontal", 9),
    Sketcher.Constraint("Coincident", 6, 3, 4, 3),
    Sketcher.Constraint("Coincident", 7, 3, 3, 3),
    Sketcher.Constraint("Coincident", 12, 3, 3, 3),
    Sketcher.Constraint("Coincident", 15, 3, 13, 3),
    Sketcher.Constraint("Coincident", 16, 3, 3, 3),
    Sketcher.Constraint("Equal", 7, 12),
    Sketcher.Constraint("Equal", 6, 13),
    Sketcher.Constraint("Equal", 4, 15),
    Sketcher.Constraint("Equal", 3, 16),
    Sketcher.Constraint("Parallel", 0, 10),
    Sketcher.Constraint("Perpendicular", 10, 11),
    Sketcher.Constraint("Parallel", 11, 17),
    Sketcher.Constraint("DistanceX", 1, 2, 1, 1, 5.0),
    Sketcher.Constraint("DistanceY", 2, 2, 2, 1, 7.0),
    Sketcher.Constraint("Distance", 0, 5.0),
    Sketcher.Constraint("Distance", 17, 7.0),
    Sketcher.Constraint("DistanceY", -1, 1, 3, 3, 410.0),
    Sketcher.Constraint("Distance", 5, 0.3),
    Sketcher.Constraint("DistanceX", 2, 2, 7, 1, 0.3),
    Sketcher.Constraint("DistanceY", 8, 2, 1, 2, 0.3),
    Sketcher.Constraint("Radius", 3, 9.585231),
    Sketcher.Constraint("Radius", 7, 9.285231),
    Sketcher.Constraint("Radius", 4, 2.992724),
    Sketcher.Constraint("DistanceX", 9, 1, 9, 2, 4.705679),
    Sketcher.Constraint("DistanceX", 4, 1, 3, 3, 5.737501),
    Sketcher.Constraint("DistanceY", 11, 2, 10, 2, 6.858098),
    Sketcher.Constraint("Distance", 10, 4.705679),
    Sketcher.Constraint("DistanceX", -1, 1, 3, 3, 141.842509),
    Sketcher.Constraint("DistanceY", -1, 1, 3, 2, 403.09034),
    Sketcher.Constraint("DistanceY", -1, 1, 5, 2, 399.879669),
    Sketcher.Constraint("DistanceY", -1, 1, 12, 1, 403.560362),
    Sketcher.Constraint("DistanceX", -1, 1, 13, 2, 147.671859),
    Sketcher.Constraint("DistanceX", -1, 1, 14, 2, 147.95565),
    Sketcher.Constraint("DistanceY", -1, 1, 14, 2, 400.19047),
    Sketcher.Constraint("DistanceX", 4, 3, 3, 2, 1.959941),
])
sketch20.setExpression("Constraints[34]", "Params.sketch20_width")
sketch20.setExpression("Constraints[35]", "Params.sketch20_height")
sketch20.setExpression("Constraints[36]", "Params.sketch20_length")
sketch20.setExpression("Constraints[37]", "Params.sketch20_length2")
sketch20.setExpression("Constraints[39]", "Params.sketch20_length3")
pad7 = body24.newObject("PartDesign::Pad", "Pad006")
pad7.Profile = sketch20
pad7.Type = "TwoLengths"
pad7.setExpression("Length", "Params.pad7_length")
pad7.setExpression("Length2", "Params.pad7_length2")
body25 = doc.addObject("PartDesign::Body", "Body024")

sketch21 = body25.newObject("Sketcher::SketchObject", "Sketch020")
sketch21.AttachmentSupport = (doc.getObject("XY_Plane024"), [""])
sketch21.MapMode = "FlatFace"
sketch21.AttachmentOffset = App.Placement(App.Vector(0, 0, 425), App.Rotation())
sketch21.addGeometry([
    Part.Circle(App.Vector(0, 0, 0), App.Vector(0, 0, 1), 6),
    Part.Circle(App.Vector(0, 0, 0), App.Vector(0, 0, 1), 5),
], False)
sketch21.addConstraint([
    Sketcher.Constraint("Coincident", 0, 3, -1, 1),
    Sketcher.Constraint("Coincident", 1, 3, -1, 1),
    Sketcher.Constraint("Diameter", 0, 12.0),
    Sketcher.Constraint("Diameter", 1, 10.0),
])
sketch21.setExpression("Constraints[2]", "Params.sketch21_diameter")
sketch21.setExpression("Constraints[3]", "Params.sketch21_diameter2")
pad8 = body25.newObject("PartDesign::Pad", "Pad007")
pad8.Profile = sketch21
pad8.setExpression("Length", "Params.pad8_length")
pad8.Reversed = True
body26 = doc.addObject("PartDesign::Body", "Body025")

sketch22 = body26.newObject("Sketcher::SketchObject", "Sketch021")
sketch22.AttachmentSupport = (doc.getObject("XY_Plane025"), [""])
sketch22.MapMode = "FlatFace"
sketch22.addGeometry(Part.Circle(App.Vector(0, 0, 0), App.Vector(0, 0, 1), 80), False)
sketch22.addConstraint([
    Sketcher.Constraint("Coincident", 0, 3, -1, 1),
    Sketcher.Constraint("Diameter", 0, 160.0),
])
sketch22.setExpression("Constraints[1]", "Params.sketch22_diameter")
pad9 = body26.newObject("PartDesign::Pad", "Pad008")
pad9.Profile = sketch22
pad9.setExpression("Length", "Params.pad9_length")
body.AllowCompound = True
doc.recompute()

body27 = doc.addObject("PartDesign::Body", "Body026")
body27.BaseFeature = body26
boolean14 = body.newObject("PartDesign::Boolean", "Boolean013")
boolean14.Type = "Cut"
boolean14.addObjects([body27])
doc.recompute()

boolean15 = body12.newObject("PartDesign::Boolean", "Boolean014")
boolean15.Type = "Cut"
boolean15.addObjects([body26])

sketch23 = body12.newObject("Sketcher::SketchObject", "Sketch022")
sketch23.AttachmentSupport = (doc.getObject("YZ_Plane011"), [""])
sketch23.MapMode = "FlatFace"
sketch23.addGeometry(Part.Circle(App.Vector(0, 20, 0), App.Vector(0, 0, 1), 3), False)
sketch23.addConstraint([
    Sketcher.Constraint("PointOnObject", 0, 3, -2),
    Sketcher.Constraint("Diameter", 0, 6.0),
    Sketcher.Constraint("DistanceY", -1, 1, 0, 3, 20.0),
])
sketch23.setExpression("Constraints[1]", "Params.sketch23_diameter")
pocket4 = body12.newObject("PartDesign::Pocket", "Pocket003")
pocket4.Profile = sketch23
pocket4.Type = "ThroughAll"
pocket4.Reversed = True
body28 = doc.addObject("PartDesign::Body", "Body027")

sketch24 = body28.newObject("Sketcher::SketchObject", "Sketch023")
sketch24.AttachmentSupport = (doc.getObject("XY_Plane027"), [""])
sketch24.MapMode = "FlatFace"
sketch24.AttachmentOffset = App.Placement(App.Vector(0, 0, 425), App.Rotation())
sketch24.addGeometry([
    Part.Circle(App.Vector(0, 0, 0), App.Vector(0, 0, 1), 6),
    Part.Circle(App.Vector(0, 0, 0), App.Vector(0, 0, 1), 5),
], False)
sketch24.addConstraint([
    Sketcher.Constraint("Coincident", 0, 3, -1, 1),
    Sketcher.Constraint("Coincident", 1, 3, -1, 1),
    Sketcher.Constraint("Diameter", 0, 12.0),
    Sketcher.Constraint("Diameter", 1, 10.0),
])
sketch24.setExpression("Constraints[2]", "Params.sketch24_diameter")
sketch24.setExpression("Constraints[3]", "Params.sketch24_diameter2")
pad10 = body28.newObject("PartDesign::Pad", "Pad009")
pad10.Profile = sketch24
pad10.setExpression("Length", "Params.pad10_length")
body29 = doc.addObject("PartDesign::Body", "Body028")

sketch25 = body29.newObject("Sketcher::SketchObject", "Sketch024")
sketch25.AttachmentSupport = (doc.getObject("XY_Plane028"), [""])
sketch25.MapMode = "FlatFace"
sketch25.AttachmentOffset = App.Placement(App.Vector(0, 0, 425), App.Rotation())
sketch25.addGeometry(Part.Circle(App.Vector(0, 0, 0), App.Vector(0, 0, 1), 5), False)
sketch25.addConstraint([
    Sketcher.Constraint("Coincident", 0, 3, -1, 1),
    Sketcher.Constraint("Diameter", 0, 10.0),
])
sketch25.setExpression("Constraints[1]", "Params.sketch25_diameter")
pad11 = body29.newObject("PartDesign::Pad", "Pad010")
pad11.Profile = sketch25
pad11.Type = "TwoLengths"
pad11.setExpression("Length", "Params.pad11_length")
pad11.setExpression("Length2", "Params.pad11_length2")
pad11.Reversed = True
body.Visibility = False
body3.Visibility = False
body6.Visibility = False
body7.Visibility = False
body8.Visibility = False
body9.Visibility = False

doc.recompute()
